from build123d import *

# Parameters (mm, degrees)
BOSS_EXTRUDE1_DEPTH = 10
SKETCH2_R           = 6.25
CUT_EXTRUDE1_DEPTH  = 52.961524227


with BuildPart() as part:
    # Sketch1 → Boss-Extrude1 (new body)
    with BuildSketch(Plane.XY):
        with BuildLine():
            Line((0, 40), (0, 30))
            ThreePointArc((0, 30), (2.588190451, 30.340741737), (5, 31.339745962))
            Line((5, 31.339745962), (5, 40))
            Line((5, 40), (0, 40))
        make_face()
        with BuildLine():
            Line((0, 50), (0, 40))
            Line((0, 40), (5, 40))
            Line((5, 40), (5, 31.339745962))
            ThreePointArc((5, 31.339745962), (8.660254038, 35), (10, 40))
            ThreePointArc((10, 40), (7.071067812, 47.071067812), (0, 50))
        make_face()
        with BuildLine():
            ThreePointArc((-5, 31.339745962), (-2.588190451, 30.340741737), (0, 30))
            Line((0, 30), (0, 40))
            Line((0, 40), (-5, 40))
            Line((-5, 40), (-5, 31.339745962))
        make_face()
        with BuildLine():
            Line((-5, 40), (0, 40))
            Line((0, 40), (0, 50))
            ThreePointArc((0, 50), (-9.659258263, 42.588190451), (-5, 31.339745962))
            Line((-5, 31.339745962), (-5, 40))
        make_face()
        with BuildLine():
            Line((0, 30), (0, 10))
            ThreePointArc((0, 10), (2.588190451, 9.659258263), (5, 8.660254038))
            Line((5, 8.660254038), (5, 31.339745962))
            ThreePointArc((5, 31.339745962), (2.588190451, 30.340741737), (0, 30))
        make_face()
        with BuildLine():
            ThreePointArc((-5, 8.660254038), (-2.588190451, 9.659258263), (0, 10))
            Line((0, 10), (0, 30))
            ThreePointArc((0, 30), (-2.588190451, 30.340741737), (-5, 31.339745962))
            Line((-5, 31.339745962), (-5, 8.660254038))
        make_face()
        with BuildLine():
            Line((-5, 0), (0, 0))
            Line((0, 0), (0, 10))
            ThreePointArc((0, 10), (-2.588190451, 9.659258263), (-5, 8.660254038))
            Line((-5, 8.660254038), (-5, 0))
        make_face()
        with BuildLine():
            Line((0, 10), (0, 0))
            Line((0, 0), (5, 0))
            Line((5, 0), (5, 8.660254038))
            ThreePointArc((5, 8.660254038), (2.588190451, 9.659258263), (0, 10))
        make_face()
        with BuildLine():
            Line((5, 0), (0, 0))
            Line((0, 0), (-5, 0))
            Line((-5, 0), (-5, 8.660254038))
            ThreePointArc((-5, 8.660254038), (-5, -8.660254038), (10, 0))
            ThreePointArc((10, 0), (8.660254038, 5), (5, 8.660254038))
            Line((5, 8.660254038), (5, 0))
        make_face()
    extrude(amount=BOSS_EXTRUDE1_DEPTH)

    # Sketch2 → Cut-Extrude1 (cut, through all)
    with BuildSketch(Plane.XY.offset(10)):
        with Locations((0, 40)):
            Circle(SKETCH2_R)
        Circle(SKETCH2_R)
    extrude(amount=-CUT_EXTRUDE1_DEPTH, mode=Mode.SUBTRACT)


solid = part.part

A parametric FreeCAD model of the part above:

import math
import FreeCAD as App
import Part
import Sketcher
from FreeCAD import Vector
Q = App.Units.Quantity

doc = App.newDocument("Part")
params = doc.addObject("Spreadsheet::Sheet", "Params")
for row, (alias, value) in enumerate([
    ("sketch1_radius", "10 mm"),
    ("pad1_length", "10 mm"),
    ("sketch2_diameter", "12.5 mm"),
], start=1):
    params.set(f"A{row}", alias)
    params.set(f"B{row}", "=" + value)
    params.setAlias(f"B{row}", alias)

body = doc.addObject("PartDesign::Body", "Body")

# Sketch on XY plane
sketch1 = body.newObject("Sketcher::SketchObject", "Sketch")
sketch1.AttachmentSupport = (doc.getObject("XY_Plane"), [""])
sketch1.MapMode = "FlatFace"
sketch1.addGeometry(Part.ArcOfCircle(Part.Circle(Vector(0, 40, 0), Vector(0, 0, 1), 10), math.radians(-60), math.radians(0)), False)
sketch1.addGeometry(Part.ArcOfCircle(Part.Circle(Vector(0, 40, 0), Vector(0, 0, 1), 10), math.radians(0), math.radians(90)), False)
sketch1.addGeometry(Part.ArcOfCircle(Part.Circle(Vector(0, 40, 0), Vector(0, 0, 1), 10), math.radians(90), math.radians(240)), False)
sketch1.addGeometry(Part.LineSegment(Vector(-5, 31.339746, 0), Vector(-5, 8.660254, 0)), False)
sketch1.addGeometry(Part.ArcOfCircle(Part.Circle(Vector(0, 0, 0), Vector(0, 0, 1), 10), math.radians(120), math.radians(360)), False)
sketch1.addGeometry(Part.ArcOfCircle(Part.Circle(Vector(0, 0, 0), Vector(0, 0, 1), 10), math.radians(0), math.radians(60)), False)
sketch1.addGeometry(Part.LineSegment(Vector(5, 8.660254, 0), Vector(5, 31.339746, 0)), False)
sketch1.addConstraint(Sketcher.Constraint("Tangent", 0, 2, 1, 1))
sketch1.addConstraint(Sketcher.Constraint("Tangent", 1, 2, 2, 1))
sketch1.addConstraint(Sketcher.Constraint("Coincident", 2, 2, 3, 1))
sketch1.addConstraint(Sketcher.Constraint("Coincident", 3, 2, 4, 1))
sketch1.addConstraint(Sketcher.Constraint("Tangent", 4, 2, 5, 1))
sketch1.addConstraint(Sketcher.Constraint("Coincident", 5, 2, 6, 1))
sketch1.addConstraint(Sketcher.Constraint("Coincident", 6, 2, 0, 1))
sketch1.addConstraint(Sketcher.Constraint("Vertical", 3))
sketch1.addConstraint(Sketcher.Constraint("Vertical", 6))
sketch1.addConstraint(Sketcher.Constraint("Coincident", 4, 3, -1, 1))
sketch1.addConstraint(Sketcher.Constraint("Coincident", 2, 3, 0, 3))
sketch1.addConstraint(Sketcher.Constraint("Equal", 2, 4))
sketch1.addConstraint(Sketcher.Constraint("Equal", 4, 5))
sketch1.addConstraint(Sketcher.Constraint("Symmetric", 2, 2, 6, 2, -2))
sketch1.addConstraint(Sketcher.Constraint("PointOnObject", 1, 2, -2))
sketch1.addConstraint(Sketcher.Constraint("PointOnObject", 4, 2, -1))
sketch1.addConstraint(Sketcher.Constraint("Horizontal", 2, 3, 0, 2))
sketch1.addConstraint(Sketcher.Constraint("Radius", 0, Q("10 mm")))
sketch1.addConstraint(Sketcher.Constraint("DistanceY", -1, 1, 0, 3, Q("40 mm")))
sketch1.addConstraint(Sketcher.Constraint("DistanceX", 2, 2, -1, 1, Q("5 mm")))
sketch1.setExpression("Constraints[17]", "Params.sketch1_radius")
pad1 = body.newObject("PartDesign::Pad", "Pad")
pad1.Profile = sketch1
pad1.setExpression("Length", "Params.pad1_length")

# Sketch on XY plane
sketch2 = body.newObject("Sketcher::SketchObject", "Sketch001")
sketch2.AttachmentSupport = (doc.getObject("XY_Plane"), [""])
sketch2.MapMode = "FlatFace"
sketch2.AttachmentOffset = App.Placement(Vector(0, 0, 10), App.Rotation())
sketch2.addGeometry(Part.Circle(Vector(0, 40, 0), Vector(0, 0, 1), 6.25), False)
sketch2.addGeometry(Part.Circle(Vector(0, 0, 0), Vector(0, 0, 1), 6.25), False)
sketch2.addConstraint(Sketcher.Constraint("Coincident", 1, 3, -1, 1))
sketch2.addConstraint(Sketcher.Constraint("Equal", 0, 1))
sketch2.addConstraint(Sketcher.Constraint("PointOnObject", 0, 3, -2))
sketch2.addConstraint(Sketcher.Constraint("Diameter", 0, Q("12.5 mm")))
sketch2.addConstraint(Sketcher.Constraint("DistanceY", -1, 1, 0, 3, Q("40 mm")))
sketch2.setExpression("Constraints[3]", "Params.sketch2_diameter")
pocket1 = body.newObject("PartDesign::Pocket", "Pocket")
pocket1.Profile = sketch2
pocket1.Type = "ThroughAll"

doc.recompute()
